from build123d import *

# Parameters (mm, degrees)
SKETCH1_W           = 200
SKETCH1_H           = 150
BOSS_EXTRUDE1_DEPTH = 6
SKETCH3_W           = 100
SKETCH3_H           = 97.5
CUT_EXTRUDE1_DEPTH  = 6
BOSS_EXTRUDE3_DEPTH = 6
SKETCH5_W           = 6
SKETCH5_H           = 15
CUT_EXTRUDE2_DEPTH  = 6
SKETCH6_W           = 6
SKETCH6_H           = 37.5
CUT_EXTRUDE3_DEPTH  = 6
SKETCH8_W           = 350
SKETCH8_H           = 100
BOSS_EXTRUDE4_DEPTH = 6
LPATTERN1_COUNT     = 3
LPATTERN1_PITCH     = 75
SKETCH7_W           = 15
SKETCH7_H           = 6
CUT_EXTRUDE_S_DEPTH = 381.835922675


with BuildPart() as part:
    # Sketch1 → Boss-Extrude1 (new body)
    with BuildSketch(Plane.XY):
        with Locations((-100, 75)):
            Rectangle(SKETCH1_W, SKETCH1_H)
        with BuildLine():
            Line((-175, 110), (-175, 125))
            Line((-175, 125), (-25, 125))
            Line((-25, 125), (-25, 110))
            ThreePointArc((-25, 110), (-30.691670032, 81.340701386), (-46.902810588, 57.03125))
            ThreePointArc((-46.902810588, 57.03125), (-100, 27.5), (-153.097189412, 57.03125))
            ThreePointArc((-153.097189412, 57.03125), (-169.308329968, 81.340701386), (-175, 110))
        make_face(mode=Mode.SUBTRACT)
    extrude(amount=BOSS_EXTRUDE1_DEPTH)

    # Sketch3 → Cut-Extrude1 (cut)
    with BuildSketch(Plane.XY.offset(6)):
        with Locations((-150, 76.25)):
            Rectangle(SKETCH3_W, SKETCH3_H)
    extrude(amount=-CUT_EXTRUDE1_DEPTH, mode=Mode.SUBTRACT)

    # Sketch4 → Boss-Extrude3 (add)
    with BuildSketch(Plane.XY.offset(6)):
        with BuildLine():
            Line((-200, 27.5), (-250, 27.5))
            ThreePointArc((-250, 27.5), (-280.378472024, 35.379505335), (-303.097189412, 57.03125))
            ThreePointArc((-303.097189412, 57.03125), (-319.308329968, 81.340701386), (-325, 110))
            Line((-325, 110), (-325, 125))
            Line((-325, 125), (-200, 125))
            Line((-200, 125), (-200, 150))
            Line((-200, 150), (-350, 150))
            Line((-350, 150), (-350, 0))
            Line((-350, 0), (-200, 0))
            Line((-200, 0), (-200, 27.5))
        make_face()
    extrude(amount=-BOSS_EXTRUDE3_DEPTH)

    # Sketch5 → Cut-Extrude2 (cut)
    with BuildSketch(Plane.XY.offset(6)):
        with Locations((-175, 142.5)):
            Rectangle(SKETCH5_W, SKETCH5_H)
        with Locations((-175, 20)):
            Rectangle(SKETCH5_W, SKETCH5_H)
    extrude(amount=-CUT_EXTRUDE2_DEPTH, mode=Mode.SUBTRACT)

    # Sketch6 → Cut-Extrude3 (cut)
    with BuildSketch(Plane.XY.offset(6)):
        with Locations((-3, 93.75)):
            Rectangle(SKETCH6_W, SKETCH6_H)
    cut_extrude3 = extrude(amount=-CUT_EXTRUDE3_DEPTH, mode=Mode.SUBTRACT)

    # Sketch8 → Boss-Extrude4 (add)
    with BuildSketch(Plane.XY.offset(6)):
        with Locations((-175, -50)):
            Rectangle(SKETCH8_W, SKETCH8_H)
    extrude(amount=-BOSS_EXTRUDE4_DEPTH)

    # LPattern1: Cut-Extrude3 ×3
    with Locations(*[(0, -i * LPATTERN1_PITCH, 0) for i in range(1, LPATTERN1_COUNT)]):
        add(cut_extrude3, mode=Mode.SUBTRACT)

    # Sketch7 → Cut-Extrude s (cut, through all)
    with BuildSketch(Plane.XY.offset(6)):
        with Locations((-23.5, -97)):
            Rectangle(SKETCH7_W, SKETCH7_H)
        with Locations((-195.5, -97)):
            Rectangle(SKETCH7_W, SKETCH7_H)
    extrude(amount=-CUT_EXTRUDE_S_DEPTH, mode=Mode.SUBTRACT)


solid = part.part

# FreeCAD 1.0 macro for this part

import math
import FreeCAD as App
import Part
import Sketcher

doc = App.newDocument("Part")
params = doc.addObject("Spreadsheet::Sheet", "Params")
for row, (alias, value) in enumerate([
    ("sketch1_radius", "75 mm"),
    ("sketch1_radius2", "62.5 mm"),
    ("sketch1_width", "200 mm"),
    ("sketch1_height", "15 mm"),
    ("pad1_length", "6 mm"),
    ("sketch2_width", "100 mm"),
    ("sketch2_height", "97.5 mm"),
    ("pocket1_length", "6 mm"),
    ("sketch3_radius", "75 mm"),
    ("sketch3_radius2", "62.5 mm"),
    ("sketch3_width", "50 mm"),
    ("sketch3_width2", "150 mm"),
    ("sketch3_height", "15 mm"),
    ("pad2_length", "6 mm"),
    ("sketch4_width", "6 mm"),
    ("sketch4_height", "15 mm"),
    ("pocket2_length", "6 mm"),
    ("sketch5_width", "6 mm"),
    ("sketch5_height", "37.5 mm"),
    ("pocket3_length", "6 mm"),
    ("sketch6_width", "350 mm"),
    ("sketch6_height", "100 mm"),
    ("pad3_length", "6 mm"),
    ("linearpattern_pitch", "75 mm"),
    ("sketch7_width", "15 mm"),
    ("sketch7_height", "6 mm"),
], start=1):
    params.set(f"A{row}", alias)
    params.set(f"B{row}", "=" + value)
    params.setAlias(f"B{row}", alias)

body = doc.addObject("PartDesign::Body", "Body")

sketch1 = body.newObject("Sketcher::SketchObject", "Sketch")
sketch1.AttachmentSupport = (doc.getObject("XY_Plane"), [""])
sketch1.MapMode = "FlatFace"
sketch1.addGeometry([
    Part.LineSegment(App.Vector(-200, 150, 0), App.Vector(-200, 0, 0)),
    Part.LineSegment(App.Vector(-200, 0, 0), App.Vector(0, 0, 0)),
    Part.LineSegment(App.Vector(0, 0, 0), App.Vector(0, 150, 0)),
    Part.LineSegment(App.Vector(0, 150, 0), App.Vector(-200, 150, 0)),
    Part.ArcOfCircle(Part.Circle(App.Vector(-100, 110, 0), App.Vector(0, 0, 1), 75), math.radians(180), math.radians(225)),
    Part.LineSegment(App.Vector(-175, 110, 0), App.Vector(-175, 125, 0)),
    Part.LineSegment(App.Vector(-175, 125, 0), App.Vector(-25, 125, 0)),
    Part.LineSegment(App.Vector(-25, 125, 0), App.Vector(-25, 110, 0)),
    Part.ArcOfCircle(Part.Circle(App.Vector(-100, 110, 0), App.Vector(0, 0, 1), 75), math.radians(-45), math.radians(0)),
    Part.ArcOfCircle(Part.Circle(App.Vector(-100, 90, 0), App.Vector(0, 0, 1), 62), math.radians(-148), math.radians(-32)),
], False)
sketch1.addConstraint([
    Sketcher.Constraint("Coincident", 0, 2, 1, 1),
    Sketcher.Constraint("Coincident", 1, 2, 2, 1),
    Sketcher.Constraint("Coincident", 2, 2, 3, 1),
    Sketcher.Constraint("Coincident", 3, 2, 0, 1),
    Sketcher.Constraint("Tangent", 4, 1, 5, 1),
    Sketcher.Constraint("Coincident", 5, 2, 6, 1),
    Sketcher.Constraint("Coincident", 6, 2, 7, 1),
    Sketcher.Constraint("Tangent", 7, 2, 8, 2),
    Sketcher.Constraint("Coincident", 8, 1, 9, 2),
    Sketcher.Constraint("Coincident", 9, 1, 4, 2),
    Sketcher.Constraint("Vertical", 0),
    Sketcher.Constraint("Horizontal", 1),
    Sketcher.Constraint("Vertical", 2),
    Sketcher.Constraint("Horizontal", 3),
    Sketcher.Constraint("Vertical", 5),
    Sketcher.Constraint("Horizontal", 6),
    Sketcher.Constraint("Vertical", 7),
    Sketcher.Constraint("Coincident", 1, 2, -1, 1),
    Sketcher.Constraint("Coincident", 8, 3, 4, 3),
    Sketcher.Constraint("Equal", 4, 8),
    Sketcher.Constraint("Horizontal", 8, 1, 9, 1),
    Sketcher.Constraint("Equal", 6, 0),
    Sketcher.Constraint("Radius", 4, 75.0),
    Sketcher.Constraint("Radius", 9, 62.5),
    Sketcher.Constraint("DistanceX", 1, 1, 1, 2, 200.0),
    Sketcher.Constraint("DistanceY", 5, 1, 5, 2, 15.0),
    Sketcher.Constraint("DistanceX", 4, 3, -1, 1, 100.0),
    Sketcher.Constraint("DistanceY", -1, 1, 4, 3, 110.0),
    Sketcher.Constraint("DistanceY", -1, 1, 9, 3, 90.0),
])
sketch1.setExpression("Constraints[22]", "Params.sketch1_radius")
sketch1.setExpression("Constraints[23]", "Params.sketch1_radius2")
sketch1.setExpression("Constraints[24]", "Params.sketch1_width")
sketch1.setExpression("Constraints[25]", "Params.sketch1_height")
pad1 = body.newObject("PartDesign::Pad", "Pad")
pad1.Profile = sketch1
pad1.setExpression("Length", "Params.pad1_length")

sketch2 = body.newObject("Sketcher::SketchObject", "Sketch001")
sketch2.AttachmentSupport = (doc.getObject("XY_Plane"), [""])
sketch2.MapMode = "FlatFace"
sketch2.AttachmentOffset = App.Placement(App.Vector(0, 0, 6), App.Rotation())
sketch2.addGeometry([
    Part.LineSegment(App.Vector(-200, 125, 0), App.Vector(-200, 28, 0)),
    Part.LineSegment(App.Vector(-200, 28, 0), App.Vector(-100, 28, 0)),
    Part.LineSegment(App.Vector(-100, 28, 0), App.Vector(-100, 125, 0)),
    Part.LineSegment(App.Vector(-100, 125, 0), App.Vector(-200, 125, 0)),
], False)
sketch2.addConstraint([
    Sketcher.Constraint("Coincident", 0, 2, 1, 1),
    Sketcher.Constraint("Coincident", 1, 2, 2, 1),
    Sketcher.Constraint("Coincident", 2, 2, 3, 1),
    Sketcher.Constraint("Coincident", 3, 2, 0, 1),
    Sketcher.Constraint("Vertical", 0),
    Sketcher.Constraint("Horizontal", 1),
    Sketcher.Constraint("Vertical", 2),
    Sketcher.Constraint("Horizontal", 3),
    Sketcher.Constraint("DistanceX", 1, 1, 1, 2, 100.0),
    Sketcher.Constraint("DistanceY", 0, 2, 0, 1, 97.5),
    Sketcher.Constraint("DistanceX", 0, 2, -1, 1, 200.0),
    Sketcher.Constraint("DistanceY", -1, 1, 2, 2, 125.0),
])
sketch2.setExpression("Constraints[8]", "Params.sketch2_width")
sketch2.setExpression("Constraints[9]", "Params.sketch2_height")
pocket1 = body.newObject("PartDesign::Pocket", "Pocket")
pocket1.Profile = sketch2
pocket1.setExpression("Length", "Params.pocket1_length")

sketch3 = body.newObject("Sketcher::SketchObject", "Sketch002")
sketch3.AttachmentSupport = (doc.getObject("XY_Plane"), [""])
sketch3.MapMode = "FlatFace"
sketch3.AttachmentOffset = App.Placement(App.Vector(0, 0, 6), App.Rotation())
sketch3.addGeometry([
    Part.LineSegment(App.Vector(-200, 28, 0), App.Vector(-250, 28, 0)),
    Part.ArcOfCircle(Part.Circle(App.Vector(-250, 90, 0), App.Vector(0, 0, 1), 63), math.radians(-148), math.radians(-90)),
    Part.ArcOfCircle(Part.Circle(App.Vector(-250, 110, 0), App.Vector(0, 0, 1), 75), math.radians(180), math.radians(225)),
    Part.LineSegment(App.Vector(-325, 110, 0), App.Vector(-325, 125, 0)),
    Part.LineSegment(App.Vector(-325, 125, 0), App.Vector(-200, 125, 0)),
    Part.LineSegment(App.Vector(-200, 125, 0), App.Vector(-200, 150, 0)),
    Part.LineSegment(App.Vector(-200, 150, 0), App.Vector(-350, 150, 0)),
    Part.LineSegment(App.Vector(-350, 150, 0), App.Vector(-350, 0, 0)),
    Part.LineSegment(App.Vector(-350, 0, 0), App.Vector(-200, 0, 0)),
    Part.LineSegment(App.Vector(-200, 0, 0), App.Vector(-200, 28, 0)),
], False)
sketch3.addConstraint([
    Sketcher.Constraint("Tangent", 0, 2, 1, 2),
    Sketcher.Constraint("Coincident", 1, 1, 2, 2),
    Sketcher.Constraint("Tangent", 2, 1, 3, 1),
    Sketcher.Constraint("Coincident", 3, 2, 4, 1),
    Sketcher.Constraint("Coincident", 4, 2, 5, 1),
    Sketcher.Constraint("Coincident", 5, 2, 6, 1),
    Sketcher.Constraint("Coincident", 6, 2, 7, 1),
    Sketcher.Constraint("Coincident", 7, 2, 8, 1),
    Sketcher.Constraint("Coincident", 8, 2, 9, 1),
    Sketcher.Constraint("Coincident", 9, 2, 0, 1),
    Sketcher.Constraint("Horizontal", 0),
    Sketcher.Constraint("Vertical", 3),
    Sketcher.Constraint("Horizontal", 4),
    Sketcher.Constraint("Vertical", 5),
    Sketcher.Constraint("Horizontal", 6),
    Sketcher.Constraint("Vertical", 7),
    Sketcher.Constraint("Horizontal", 8),
    Sketcher.Constraint("Vertical", 9),
    Sketcher.Constraint("PointOnObject", 7, 2, -1),
    Sketcher.Constraint("Vertical", 1, 3, 2, 3),
    Sketcher.Constraint("Vertical", 5, 2, 8, 2),
    Sketcher.Constraint("Equal", 8, 7),
    Sketcher.Constraint("Radius", 2, 75.0),
    Sketcher.Constraint("Radius", 1, 62.5),
    Sketcher.Constraint("DistanceX", 0, 2, 0, 1, 50.0),
    Sketcher.Constraint("DistanceX", 6, 2, 6, 1, 150.0),
    Sketcher.Constraint("DistanceY", 3, 1, 3, 2, 15.0),
    Sketcher.Constraint("DistanceY", 5, 1, 5, 2, 25.0),
    Sketcher.Constraint("DistanceY", 9, 1, 9, 2, 27.5),
    Sketcher.Constraint("DistanceX", 1, 3, -1, 1, 250.0),
])
sketch3.setExpression("Constraints[22]", "Params.sketch3_radius")
sketch3.setExpression("Constraints[23]", "Params.sketch3_radius2")
sketch3.setExpression("Constraints[24]", "Params.sketch3_width")
sketch3.setExpression("Constraints[25]", "Params.sketch3_width2")
sketch3.setExpression("Constraints[26]", "Params.sketch3_height")
pad2 = body.newObject("PartDesign::Pad", "Pad001")
pad2.Profile = sketch3
pad2.setExpression("Length", "Params.pad2_length")
pad2.Reversed = True

sketch4 = body.newObject("Sketcher::SketchObject", "Sketch003")
sketch4.AttachmentSupport = (doc.getObject("XY_Plane"), [""])
sketch4.MapMode = "FlatFace"
sketch4.AttachmentOffset = App.Placement(App.Vector(0, 0, 6), App.Rotation())
sketch4.addGeometry([
    Part.LineSegment(App.Vector(-178, 150, 0), App.Vector(-178, 135, 0)),
    Part.LineSegment(App.Vector(-178, 135, 0), App.Vector(-172, 135, 0)),
    Part.LineSegment(App.Vector(-172, 135, 0), App.Vector(-172, 150, 0)),
    Part.LineSegment(App.Vector(-172, 150, 0), App.Vector(-178, 150, 0)),
    Part.LineSegment(App.Vector(-178, 28, 0), App.Vector(-178, 12, 0)),
    Part.LineSegment(App.Vector(-178, 12, 0), App.Vector(-172, 12, 0)),
    Part.LineSegment(App.Vector(-172, 12, 0), App.Vector(-172, 28, 0)),
    Part.LineSegment(App.Vector(-172, 28, 0), App.Vector(-178, 28, 0)),
], False)
sketch4.addConstraint([
    Sketcher.Constraint("Coincident", 0, 2, 1, 1),
    Sketcher.Constraint("Coincident", 1, 2, 2, 1),
    Sketcher.Constraint("Coincident", 2, 2, 3, 1),
    Sketcher.Constraint("Coincident", 3, 2, 0, 1),
    Sketcher.Constraint("Coincident", 4, 2, 5, 1),
    Sketcher.Constraint("Coincident", 5, 2, 6, 1),
    Sketcher.Constraint("Coincident", 6, 2, 7, 1),
    Sketcher.Constraint("Coincident", 7, 2, 4, 1),
    Sketcher.Constraint("Vertical", 0),
    Sketcher.Constraint("Horizontal", 1),
    Sketcher.Constraint("Vertical", 2),
    Sketcher.Constraint("Horizontal", 3),
    Sketcher.Constraint("Vertical", 4),
    Sketcher.Constraint("Horizontal", 5),
    Sketcher.Constraint("Vertical", 6),
    Sketcher.Constraint("Horizontal", 7),
    Sketcher.Constraint("Vertical", 3, 2, 4, 2),
    Sketcher.Constraint("Vertical", 2, 2, 5, 2),
    Sketcher.Constraint("Equal", 2, 4),
    Sketcher.Constraint("DistanceX", 1, 1, 1, 2, 6.0),
    Sketcher.Constraint("DistanceY", 0, 2, 0, 1, 15.0),
    Sketcher.Constraint("DistanceX", 0, 2, -1, 1, 178.0),
    Sketcher.Constraint("DistanceY", -1, 1, 0, 2, 135.0),
    Sketcher.Constraint("DistanceY", -1, 1, 4, 2, 12.5),
])
sketch4.setExpression("Constraints[19]", "Params.sketch4_width")
sketch4.setExpression("Constraints[20]", "Params.sketch4_height")
pocket2 = body.newObject("PartDesign::Pocket", "Pocket001")
pocket2.Profile = sketch4
pocket2.setExpression("Length", "Params.pocket2_length")

sketch5 = body.newObject("Sketcher::SketchObject", "Sketch004")
sketch5.AttachmentSupport = (doc.getObject("XY_Plane"), [""])
sketch5.MapMode = "FlatFace"
sketch5.AttachmentOffset = App.Placement(App.Vector(0, 0, 6), App.Rotation())
sketch5.addGeometry([
    Part.LineSegment(App.Vector(-6, 112, 0), App.Vector(-6, 75, 0)),
    Part.LineSegment(App.Vector(-6, 75, 0), App.Vector(0, 75, 0)),
    Part.LineSegment(App.Vector(0, 75, 0), App.Vector(0, 112, 0)),
    Part.LineSegment(App.Vector(0, 112, 0), App.Vector(-6, 112, 0)),
], False)
sketch5.addConstraint([
    Sketcher.Constraint("Coincident", 0, 2, 1, 1),
    Sketcher.Constraint("Coincident", 1, 2, 2, 1),
    Sketcher.Constraint("Coincident", 2, 2, 3, 1),
    Sketcher.Constraint("Coincident", 3, 2, 0, 1),
    Sketcher.Constraint("Vertical", 0),
    Sketcher.Constraint("Horizontal", 1),
    Sketcher.Constraint("Vertical", 2),
    Sketcher.Constraint("Horizontal", 3),
    Sketcher.Constraint("PointOnObject", 1, 2, -2),
    Sketcher.Constraint("DistanceX", 1, 1, 1, 2, 6.0),
    Sketcher.Constraint("DistanceY", 0, 2, 0, 1, 37.5),
    Sketcher.Constraint("DistanceY", -1, 1, 0, 2, 75.0),
])
sketch5.setExpression("Constraints[9]", "Params.sketch5_width")
sketch5.setExpression("Constraints[10]", "Params.sketch5_height")
pocket3 = body.newObject("PartDesign::Pocket", "Pocket002")
pocket3.Profile = sketch5
pocket3.setExpression("Length", "Params.pocket3_length")

sketch6 = body.newObject("Sketcher::SketchObject", "Sketch005")
sketch6.AttachmentSupport = (doc.getObject("XY_Plane"), [""])
sketch6.MapMode = "FlatFace"
sketch6.AttachmentOffset = App.Placement(App.Vector(0, 0, 6), App.Rotation())
sketch6.addGeometry([
    Part.LineSegment(App.Vector(-350, 0, 0), App.Vector(-350, -100, 0)),
    Part.LineSegment(App.Vector(-350, -100, 0), App.Vector(0, -100, 0)),
    Part.LineSegment(App.Vector(0, -100, 0), App.Vector(0, 0, 0)),
    Part.LineSegment(App.Vector(0, 0, 0), App.Vector(-350, 0, 0)),
], False)
sketch6.addConstraint([
    Sketcher.Constraint("Coincident", 0, 2, 1, 1),
    Sketcher.Constraint("Coincident", 1, 2, 2, 1),
    Sketcher.Constraint("Coincident", 2, 2, 3, 1),
    Sketcher.Constraint("Coincident", 3, 2, 0, 1),
    Sketcher.Constraint("Vertical", 0),
    Sketcher.Constraint("Horizontal", 1),
    Sketcher.Constraint("Vertical", 2),
    Sketcher.Constraint("Horizontal", 3),
    Sketcher.Constraint("Coincident", 2, 2, -1, 1),
    Sketcher.Constraint("DistanceX", 1, 1, 1, 2, 350.0),
    Sketcher.Constraint("DistanceY", 0, 2, 0, 1, 100.0),
])
sketch6.setExpression("Constraints[9]", "Params.sketch6_width")
sketch6.setExpression("Constraints[10]", "Params.sketch6_height")
pad3 = body.newObject("PartDesign::Pad", "Pad002")
pad3.Profile = sketch6
pad3.setExpression("Length", "Params.pad3_length")
pad3.Reversed = True
doc.recompute()

linearpattern = body.newObject("PartDesign::LinearPattern", "LinearPattern")
linearpattern.Originals = [pocket3]
linearpattern.Direction = (doc.getObject("Y_Axis"), [""])
linearpattern.Mode = "offset"
linearpattern.setExpression("Offset", "Params.linearpattern_pitch")
linearpattern.Occurrences = 3
linearpattern.Reversed = True
body.Tip = linearpattern

sketch7 = body.newObject("Sketcher::SketchObject", "Sketch006")
sketch7.AttachmentSupport = (doc.getObject("XY_Plane"), [""])
sketch7.MapMode = "FlatFace"
sketch7.AttachmentOffset = App.Placement(App.Vector(0, 0, 6), App.Rotation())
sketch7.addGeometry([
    Part.LineSegment(App.Vector(-31, -94, 0), App.Vector(-31, -100, 0)),
    Part.LineSegment(App.Vector(-31, -100, 0), App.Vector(-16, -100, 0)),
    Part.LineSegment(App.Vector(-16, -100, 0), App.Vector(-16, -94, 0)),
    Part.LineSegment(App.Vector(-16, -94, 0), App.Vector(-31, -94, 0)),
    Part.LineSegment(App.Vector(-203, -94, 0), App.Vector(-203, -100, 0)),
    Part.LineSegment(App.Vector(-203, -100, 0), App.Vector(-188, -100, 0)),
    Part.LineSegment(App.Vector(-188, -100, 0), App.Vector(-188, -94, 0)),
    Part.LineSegment(App.Vector(-188, -94, 0), App.Vector(-203, -94, 0)),
], False)
sketch7.addConstraint([
    Sketcher.Constraint("Coincident", 0, 2, 1, 1),
    Sketcher.Constraint("Coincident", 1, 2, 2, 1),
    Sketcher.Constraint("Coincident", 2, 2, 3, 1),
    Sketcher.Constraint("Coincident", 3, 2, 0, 1),
    Sketcher.Constraint("Coincident", 4, 2, 5, 1),
    Sketcher.Constraint("Coincident", 5, 2, 6, 1),
    Sketcher.Constraint("Coincident", 6, 2, 7, 1),
    Sketcher.Constraint("Coincident", 7, 2, 4, 1),
    Sketcher.Constraint("Vertical", 0),
    Sketcher.Constraint("Horizontal", 1),
    Sketcher.Constraint("Vertical", 2),
    Sketcher.Constraint("Horizontal", 3),
    Sketcher.Constraint("Vertical", 4),
    Sketcher.Constraint("Horizontal", 5),
    Sketcher.Constraint("Vertical", 6),
    Sketcher.Constraint("Horizontal", 7),
    Sketcher.Constraint("Horizontal", 1, 2, 4, 2),
    Sketcher.Constraint("Horizontal", 3, 2, 6, 2),
    Sketcher.Constraint("Equal", 3, 5),
    Sketcher.Constraint("DistanceX", 1, 1, 1, 2, 15.0),
    Sketcher.Constraint("DistanceY", 0, 2, 0, 1, 6.0),
    Sketcher.Constraint("DistanceX", 0, 2, -1, 1, 31.0),
    Sketcher.Constraint("DistanceY", 0, 2, -1, 1, 100.0),
    Sketcher.Constraint("DistanceX", 4, 2, -1, 1, 203.0),
])
sketch7.setExpression("Constraints[19]", "Params.sketch7_width")
sketch7.setExpression("Constraints[20]", "Params.sketch7_height")
pocket4 = body.newObject("PartDesign::Pocket", "Pocket003")
pocket4.Profile = sketch7
pocket4.Type = "ThroughAll"

doc.recompute()
